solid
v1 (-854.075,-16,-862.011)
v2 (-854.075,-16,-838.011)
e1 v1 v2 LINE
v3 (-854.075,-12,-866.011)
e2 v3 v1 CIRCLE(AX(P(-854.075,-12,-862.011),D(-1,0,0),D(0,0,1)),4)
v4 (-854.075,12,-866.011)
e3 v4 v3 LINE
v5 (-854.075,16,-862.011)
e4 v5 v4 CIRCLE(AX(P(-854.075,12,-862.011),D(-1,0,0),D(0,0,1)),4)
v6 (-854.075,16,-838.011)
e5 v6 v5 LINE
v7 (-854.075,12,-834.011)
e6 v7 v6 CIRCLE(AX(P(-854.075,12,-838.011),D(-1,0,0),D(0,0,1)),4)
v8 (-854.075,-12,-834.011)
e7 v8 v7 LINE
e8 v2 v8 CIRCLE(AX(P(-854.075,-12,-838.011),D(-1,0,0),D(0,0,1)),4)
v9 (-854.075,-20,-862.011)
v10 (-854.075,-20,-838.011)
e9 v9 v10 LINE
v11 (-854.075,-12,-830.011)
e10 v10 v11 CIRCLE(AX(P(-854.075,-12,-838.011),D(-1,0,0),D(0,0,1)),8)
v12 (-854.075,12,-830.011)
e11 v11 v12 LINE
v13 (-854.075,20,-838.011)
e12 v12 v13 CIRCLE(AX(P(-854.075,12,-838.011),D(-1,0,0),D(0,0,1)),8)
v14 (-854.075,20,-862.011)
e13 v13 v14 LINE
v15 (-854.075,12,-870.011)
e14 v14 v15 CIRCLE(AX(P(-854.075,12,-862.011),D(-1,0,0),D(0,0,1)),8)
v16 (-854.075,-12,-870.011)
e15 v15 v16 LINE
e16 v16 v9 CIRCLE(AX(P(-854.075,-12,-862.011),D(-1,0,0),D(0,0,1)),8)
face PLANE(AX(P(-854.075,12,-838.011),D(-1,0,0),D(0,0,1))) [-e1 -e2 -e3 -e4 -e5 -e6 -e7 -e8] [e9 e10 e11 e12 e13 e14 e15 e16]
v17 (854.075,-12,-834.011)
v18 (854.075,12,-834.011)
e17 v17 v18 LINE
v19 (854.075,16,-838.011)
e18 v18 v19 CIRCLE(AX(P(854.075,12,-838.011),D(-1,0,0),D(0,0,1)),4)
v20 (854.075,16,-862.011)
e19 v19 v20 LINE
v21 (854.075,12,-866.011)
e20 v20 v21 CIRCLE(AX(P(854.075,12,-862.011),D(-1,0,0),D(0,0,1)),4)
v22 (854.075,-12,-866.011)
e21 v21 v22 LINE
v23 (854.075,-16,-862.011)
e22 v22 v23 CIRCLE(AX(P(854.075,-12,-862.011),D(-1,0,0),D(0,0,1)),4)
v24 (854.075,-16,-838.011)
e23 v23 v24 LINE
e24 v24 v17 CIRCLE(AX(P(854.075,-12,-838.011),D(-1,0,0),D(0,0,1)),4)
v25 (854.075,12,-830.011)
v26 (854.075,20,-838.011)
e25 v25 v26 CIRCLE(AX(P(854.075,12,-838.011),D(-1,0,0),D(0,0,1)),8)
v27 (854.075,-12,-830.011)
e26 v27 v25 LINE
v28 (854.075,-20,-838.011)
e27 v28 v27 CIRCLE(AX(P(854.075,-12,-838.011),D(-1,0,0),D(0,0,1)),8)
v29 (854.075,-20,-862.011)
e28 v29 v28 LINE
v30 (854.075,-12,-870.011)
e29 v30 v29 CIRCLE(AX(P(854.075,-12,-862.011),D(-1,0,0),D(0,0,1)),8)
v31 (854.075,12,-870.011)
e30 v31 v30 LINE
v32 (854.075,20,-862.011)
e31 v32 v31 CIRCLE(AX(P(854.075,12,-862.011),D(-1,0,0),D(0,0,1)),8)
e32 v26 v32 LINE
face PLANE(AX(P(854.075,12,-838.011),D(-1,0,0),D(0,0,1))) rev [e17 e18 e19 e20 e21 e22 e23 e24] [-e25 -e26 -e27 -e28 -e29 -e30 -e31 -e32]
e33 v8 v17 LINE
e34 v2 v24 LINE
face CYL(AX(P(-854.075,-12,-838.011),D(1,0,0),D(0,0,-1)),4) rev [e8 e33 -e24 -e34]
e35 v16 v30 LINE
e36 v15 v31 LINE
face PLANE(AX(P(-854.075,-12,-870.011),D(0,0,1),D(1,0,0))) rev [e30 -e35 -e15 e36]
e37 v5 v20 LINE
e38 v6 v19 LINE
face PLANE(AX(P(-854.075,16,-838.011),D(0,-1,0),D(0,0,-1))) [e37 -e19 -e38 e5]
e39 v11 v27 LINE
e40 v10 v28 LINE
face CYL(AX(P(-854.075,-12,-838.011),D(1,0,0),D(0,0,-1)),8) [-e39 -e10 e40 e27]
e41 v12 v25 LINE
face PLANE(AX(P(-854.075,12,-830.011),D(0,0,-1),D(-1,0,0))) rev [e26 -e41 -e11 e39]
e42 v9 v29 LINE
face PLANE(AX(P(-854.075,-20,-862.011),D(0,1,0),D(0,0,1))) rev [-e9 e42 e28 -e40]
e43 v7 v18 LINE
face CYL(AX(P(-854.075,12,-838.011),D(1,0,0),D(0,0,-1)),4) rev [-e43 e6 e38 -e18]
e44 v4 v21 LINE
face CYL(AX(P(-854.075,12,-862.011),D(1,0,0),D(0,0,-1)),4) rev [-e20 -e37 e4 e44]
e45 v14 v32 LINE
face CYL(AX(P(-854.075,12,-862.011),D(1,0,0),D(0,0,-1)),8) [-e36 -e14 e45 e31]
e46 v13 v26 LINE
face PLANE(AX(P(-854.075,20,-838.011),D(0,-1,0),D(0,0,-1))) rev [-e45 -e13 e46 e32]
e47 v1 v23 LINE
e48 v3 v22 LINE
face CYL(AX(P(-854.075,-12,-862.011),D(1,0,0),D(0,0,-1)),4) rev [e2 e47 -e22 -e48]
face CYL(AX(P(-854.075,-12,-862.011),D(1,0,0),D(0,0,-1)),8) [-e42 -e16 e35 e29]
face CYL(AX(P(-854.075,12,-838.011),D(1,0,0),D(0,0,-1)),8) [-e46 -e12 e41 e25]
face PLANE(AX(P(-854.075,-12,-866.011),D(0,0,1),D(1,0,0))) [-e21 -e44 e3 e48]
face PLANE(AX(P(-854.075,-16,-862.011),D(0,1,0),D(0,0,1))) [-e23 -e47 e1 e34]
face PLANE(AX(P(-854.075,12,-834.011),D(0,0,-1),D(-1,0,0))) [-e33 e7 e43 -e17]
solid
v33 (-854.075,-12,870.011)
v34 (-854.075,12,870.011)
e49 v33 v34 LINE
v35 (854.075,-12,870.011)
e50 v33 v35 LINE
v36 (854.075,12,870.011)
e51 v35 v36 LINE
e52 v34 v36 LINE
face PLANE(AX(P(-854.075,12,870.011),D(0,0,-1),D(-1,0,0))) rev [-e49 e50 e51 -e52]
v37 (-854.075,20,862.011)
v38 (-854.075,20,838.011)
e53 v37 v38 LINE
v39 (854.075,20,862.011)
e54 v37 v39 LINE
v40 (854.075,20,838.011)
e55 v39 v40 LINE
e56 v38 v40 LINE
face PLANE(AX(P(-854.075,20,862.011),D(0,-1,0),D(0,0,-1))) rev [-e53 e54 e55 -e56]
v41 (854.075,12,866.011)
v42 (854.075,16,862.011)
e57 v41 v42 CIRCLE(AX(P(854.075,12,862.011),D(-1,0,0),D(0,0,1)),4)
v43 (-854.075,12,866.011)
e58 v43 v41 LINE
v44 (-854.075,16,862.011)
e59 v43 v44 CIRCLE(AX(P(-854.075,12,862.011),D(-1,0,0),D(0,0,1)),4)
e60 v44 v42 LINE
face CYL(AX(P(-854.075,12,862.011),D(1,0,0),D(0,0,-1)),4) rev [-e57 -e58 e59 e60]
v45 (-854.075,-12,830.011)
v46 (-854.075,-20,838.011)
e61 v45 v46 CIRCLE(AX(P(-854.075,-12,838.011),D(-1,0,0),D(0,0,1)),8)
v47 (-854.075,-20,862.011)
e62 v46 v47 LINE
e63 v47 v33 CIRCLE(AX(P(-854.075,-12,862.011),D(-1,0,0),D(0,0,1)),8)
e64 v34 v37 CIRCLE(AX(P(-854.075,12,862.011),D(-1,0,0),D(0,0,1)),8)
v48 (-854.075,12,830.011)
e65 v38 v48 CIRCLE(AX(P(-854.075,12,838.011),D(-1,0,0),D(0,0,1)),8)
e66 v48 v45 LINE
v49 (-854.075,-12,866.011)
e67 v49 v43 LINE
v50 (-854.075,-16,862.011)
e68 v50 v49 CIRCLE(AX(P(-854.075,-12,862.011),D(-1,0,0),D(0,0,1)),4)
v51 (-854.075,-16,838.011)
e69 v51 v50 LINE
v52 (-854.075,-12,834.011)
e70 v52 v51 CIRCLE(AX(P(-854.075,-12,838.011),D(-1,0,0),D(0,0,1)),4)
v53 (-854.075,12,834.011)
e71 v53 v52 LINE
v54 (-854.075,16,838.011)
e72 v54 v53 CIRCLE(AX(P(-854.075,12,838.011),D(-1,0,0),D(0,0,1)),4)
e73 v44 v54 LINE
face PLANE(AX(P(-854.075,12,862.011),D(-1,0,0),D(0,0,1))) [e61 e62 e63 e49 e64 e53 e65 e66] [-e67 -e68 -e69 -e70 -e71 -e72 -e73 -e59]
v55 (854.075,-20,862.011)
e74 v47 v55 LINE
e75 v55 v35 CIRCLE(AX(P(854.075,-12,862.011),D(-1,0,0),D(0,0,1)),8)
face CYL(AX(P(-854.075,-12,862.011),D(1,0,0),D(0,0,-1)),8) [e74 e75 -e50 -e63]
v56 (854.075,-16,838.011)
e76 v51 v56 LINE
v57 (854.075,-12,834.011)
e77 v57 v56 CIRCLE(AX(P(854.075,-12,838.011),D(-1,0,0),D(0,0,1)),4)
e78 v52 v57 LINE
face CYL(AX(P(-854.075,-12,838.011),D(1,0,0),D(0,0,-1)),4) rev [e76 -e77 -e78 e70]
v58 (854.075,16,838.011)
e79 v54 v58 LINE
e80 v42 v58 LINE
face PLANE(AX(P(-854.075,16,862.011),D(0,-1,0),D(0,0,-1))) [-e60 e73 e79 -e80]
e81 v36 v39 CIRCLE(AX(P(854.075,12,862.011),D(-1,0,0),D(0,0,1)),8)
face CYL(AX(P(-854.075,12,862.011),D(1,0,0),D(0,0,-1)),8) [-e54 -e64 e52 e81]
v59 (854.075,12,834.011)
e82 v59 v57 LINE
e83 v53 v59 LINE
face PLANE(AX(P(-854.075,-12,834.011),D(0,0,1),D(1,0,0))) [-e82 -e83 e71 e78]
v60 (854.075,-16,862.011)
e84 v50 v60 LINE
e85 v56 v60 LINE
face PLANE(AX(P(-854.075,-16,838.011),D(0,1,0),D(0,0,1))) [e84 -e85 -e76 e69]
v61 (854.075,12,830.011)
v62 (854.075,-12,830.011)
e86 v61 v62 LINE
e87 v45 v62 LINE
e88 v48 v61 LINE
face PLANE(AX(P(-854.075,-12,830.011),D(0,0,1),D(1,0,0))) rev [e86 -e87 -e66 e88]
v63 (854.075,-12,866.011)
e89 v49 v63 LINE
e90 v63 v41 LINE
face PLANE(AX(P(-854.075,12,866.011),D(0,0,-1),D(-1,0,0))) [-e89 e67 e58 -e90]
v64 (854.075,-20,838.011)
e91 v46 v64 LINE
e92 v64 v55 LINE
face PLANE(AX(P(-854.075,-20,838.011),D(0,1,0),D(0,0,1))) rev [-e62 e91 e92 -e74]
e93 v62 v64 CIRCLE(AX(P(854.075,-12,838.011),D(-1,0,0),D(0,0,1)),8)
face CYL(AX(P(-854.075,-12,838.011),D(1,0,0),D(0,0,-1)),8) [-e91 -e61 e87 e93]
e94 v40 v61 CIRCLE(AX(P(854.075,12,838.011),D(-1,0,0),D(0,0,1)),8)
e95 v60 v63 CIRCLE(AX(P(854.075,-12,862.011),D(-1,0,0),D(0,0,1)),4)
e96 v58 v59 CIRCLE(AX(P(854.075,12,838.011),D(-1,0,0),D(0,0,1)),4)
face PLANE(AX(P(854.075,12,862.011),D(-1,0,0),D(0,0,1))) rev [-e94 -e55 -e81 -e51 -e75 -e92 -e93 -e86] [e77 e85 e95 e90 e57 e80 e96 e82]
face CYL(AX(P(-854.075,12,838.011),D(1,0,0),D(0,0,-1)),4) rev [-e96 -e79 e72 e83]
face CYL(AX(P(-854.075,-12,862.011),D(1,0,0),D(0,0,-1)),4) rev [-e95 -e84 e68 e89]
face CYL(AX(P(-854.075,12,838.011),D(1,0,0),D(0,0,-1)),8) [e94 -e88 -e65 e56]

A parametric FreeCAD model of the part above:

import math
import FreeCAD as App
import Part
import Sketcher
from FreeCAD import Vector

doc = App.newDocument("Part")
body = doc.addObject("PartDesign::Body", "Body")

sketch1 = doc.addObject("Sketcher::SketchObject", "Sketch")
body.addObject(sketch1)
sketch1.AttachmentSupport = (doc.YZ_Plane, [""])
sketch1.MapMode = "FlatFace"
sketch1.AttachmentOffset = App.Placement(Vector(0, 0, 854.075), App.Rotation())
sketch1.addGeometry([
    Part.LineSegment(Vector(-20, -862, 0), Vector(-20, -838, 0)),
    Part.ArcOfCircle(Part.Circle(Vector(-12, -838, 0), Vector(0, 0, 1), 8), math.radians(90), math.radians(180)),
    Part.LineSegment(Vector(-12, -830, 0), Vector(12, -830, 0)),
    Part.ArcOfCircle(Part.Circle(Vector(12, -838, 0), Vector(0, 0, 1), 8), math.radians(0), math.radians(90)),
    Part.LineSegment(Vector(20, -838, 0), Vector(20, -862, 0)),
    Part.ArcOfCircle(Part.Circle(Vector(12, -862, 0), Vector(0, 0, 1), 8), math.radians(-90), math.radians(0)),
    Part.LineSegment(Vector(12, -870, 0), Vector(-12, -870, 0)),
    Part.ArcOfCircle(Part.Circle(Vector(-12, -862, 0), Vector(0, 0, 1), 8), math.radians(-180), math.radians(-90)),
    Part.LineSegment(Vector(-16, -838, 0), Vector(-16, -862, 0)),
    Part.ArcOfCircle(Part.Circle(Vector(-12, -862, 0), Vector(0, 0, 1), 4), math.radians(180), math.radians(270)),
    Part.LineSegment(Vector(-12, -866, 0), Vector(12, -866, 0)),
    Part.ArcOfCircle(Part.Circle(Vector(12, -862, 0), Vector(0, 0, 1), 4), math.radians(-90), math.radians(0)),
    Part.LineSegment(Vector(16, -862, 0), Vector(16, -838, 0)),
    Part.ArcOfCircle(Part.Circle(Vector(12, -838, 0), Vector(0, 0, 1), 4), math.radians(0), math.radians(90)),
    Part.LineSegment(Vector(12, -834, 0), Vector(-12, -834, 0)),
    Part.ArcOfCircle(Part.Circle(Vector(-12, -838, 0), Vector(0, 0, 1), 4), math.radians(90), math.radians(180)),
], False)
sketch1.addConstraint([
    Sketcher.Constraint("Tangent", 0, 2, 1, 2),
    Sketcher.Constraint("Tangent", 1, 1, 2, 1),
    Sketcher.Constraint("Tangent", 2, 2, 3, 2),
    Sketcher.Constraint("Tangent", 3, 1, 4, 1),
    Sketcher.Constraint("Tangent", 4, 2, 5, 2),
    Sketcher.Constraint("Tangent", 5, 1, 6, 1),
    Sketcher.Constraint("Tangent", 6, 2, 7, 2),
    Sketcher.Constraint("Tangent", 7, 1, 0, 1),
    Sketcher.Constraint("Tangent", 8, 2, 9, 1),
    Sketcher.Constraint("Tangent", 9, 2, 10, 1),
    Sketcher.Constraint("Tangent", 10, 2, 11, 1),
    Sketcher.Constraint("Tangent", 11, 2, 12, 1),
    Sketcher.Constraint("Tangent", 12, 2, 13, 1),
    Sketcher.Constraint("Tangent", 13, 2, 14, 1),
    Sketcher.Constraint("Tangent", 14, 2, 15, 1),
    Sketcher.Constraint("Tangent", 15, 2, 8, 1),
    Sketcher.Constraint("Vertical", 0),
    Sketcher.Constraint("Horizontal", 2),
    Sketcher.Constraint("Vertical", 4),
    Sketcher.Constraint("Horizontal", 6),
    Sketcher.Constraint("Vertical", 8),
    Sketcher.Constraint("Horizontal", 10),
    Sketcher.Constraint("Vertical", 12),
    Sketcher.Constraint("Horizontal", 14),
    Sketcher.Constraint("Coincident", 9, 3, 7, 3),
    Sketcher.Constraint("Coincident", 11, 3, 5, 3),
    Sketcher.Constraint("Coincident", 13, 3, 3, 3),
    Sketcher.Constraint("Equal", 1, 3),
    Sketcher.Constraint("Equal", 3, 5),
    Sketcher.Constraint("Equal", 5, 7),
    Sketcher.Constraint("Equal", 13, 15),
    Sketcher.Constraint("Equal", 14, 0),
    Sketcher.Constraint("Radius", 1, 8.0),
    Sketcher.Constraint("Radius", 9, 4.0),
    Sketcher.Constraint("DistanceX", 2, 1, 2, 2, 24.0),
    Sketcher.Constraint("DistanceX", 1, 3, -1, 1, 12.0),
    Sketcher.Constraint("DistanceY", 1, 3, -1, 1, 838.011),
])
pad1 = doc.addObject("PartDesign::Pad", "Pad")
body.addObject(pad1)
pad1.Profile = sketch1
pad1.Length = 1708.15
pad1.Reversed = True
body2 = doc.addObject("PartDesign::Body", "Body001")

sketch2 = doc.addObject("Sketcher::SketchObject", "Sketch001")
body2.addObject(sketch2)
sketch2.AttachmentSupport = (doc.getObject("YZ_Plane001"), [""])
sketch2.MapMode = "FlatFace"
sketch2.AttachmentOffset = App.Placement(Vector(0, 0, 854.075), App.Rotation())
sketch2.addGeometry([
    Part.LineSegment(Vector(-20, 838, 0), Vector(-20, 862, 0)),
    Part.ArcOfCircle(Part.Circle(Vector(-12, 862, 0), Vector(0, 0, 1), 8), math.radians(90), math.radians(180)),
    Part.LineSegment(Vector(-12, 870, 0), Vector(12, 870, 0)),
    Part.ArcOfCircle(Part.Circle(Vector(12, 862, 0), Vector(0, 0, 1), 8), math.radians(0), math.radians(90)),
    Part.LineSegment(Vector(20, 862, 0), Vector(20, 838, 0)),
    Part.ArcOfCircle(Part.Circle(Vector(12, 838, 0), Vector(0, 0, 1), 8), math.radians(-90), math.radians(0)),
    Part.LineSegment(Vector(12, 830, 0), Vector(-12, 830, 0)),
    Part.ArcOfCircle(Part.Circle(Vector(-12, 838, 0), Vector(0, 0, 1), 8), math.radians(-180), math.radians(-90)),
    Part.LineSegment(Vector(-16, 862, 0), Vector(-16, 838, 0)),
    Part.ArcOfCircle(Part.Circle(Vector(-12, 838, 0), Vector(0, 0, 1), 4), math.radians(180), math.radians(270)),
    Part.LineSegment(Vector(-12, 834, 0), Vector(12, 834, 0)),
    Part.ArcOfCircle(Part.Circle(Vector(12, 838, 0), Vector(0, 0, 1), 4), math.radians(-90), math.radians(0)),
    Part.LineSegment(Vector(16, 838, 0), Vector(16, 862, 0)),
    Part.ArcOfCircle(Part.Circle(Vector(12, 862, 0), Vector(0, 0, 1), 4), math.radians(0), math.radians(90)),
    Part.LineSegment(Vector(12, 866, 0), Vector(-12, 866, 0)),
    Part.ArcOfCircle(Part.Circle(Vector(-12, 862, 0), Vector(0, 0, 1), 4), math.radians(90), math.radians(180)),
], False)
sketch2.addConstraint([
    Sketcher.Constraint("Tangent", 0, 2, 1, 2),
    Sketcher.Constraint("Tangent", 1, 1, 2, 1),
    Sketcher.Constraint("Tangent", 2, 2, 3, 2),
    Sketcher.Constraint("Tangent", 3, 1, 4, 1),
    Sketcher.Constraint("Tangent", 4, 2, 5, 2),
    Sketcher.Constraint("Tangent", 5, 1, 6, 1),
    Sketcher.Constraint("Tangent", 6, 2, 7, 2),
    Sketcher.Constraint("Tangent", 7, 1, 0, 1),
    Sketcher.Constraint("Tangent", 8, 2, 9, 1),
    Sketcher.Constraint("Tangent", 9, 2, 10, 1),
    Sketcher.Constraint("Tangent", 10, 2, 11, 1),
    Sketcher.Constraint("Tangent", 11, 2, 12, 1),
    Sketcher.Constraint("Tangent", 12, 2, 13, 1),
    Sketcher.Constraint("Tangent", 13, 2, 14, 1),
    Sketcher.Constraint("Tangent", 14, 2, 15, 1),
    Sketcher.Constraint("Tangent", 15, 2, 8, 1),
    Sketcher.Constraint("Vertical", 0),
    Sketcher.Constraint("Horizontal", 2),
    Sketcher.Constraint("Vertical", 4),
    Sketcher.Constraint("Horizontal", 6),
    Sketcher.Constraint("Vertical", 8),
    Sketcher.Constraint("Horizontal", 10),
    Sketcher.Constraint("Vertical", 12),
    Sketcher.Constraint("Horizontal", 14),
    Sketcher.Constraint("Coincident", 9, 3, 7, 3),
    Sketcher.Constraint("Coincident", 11, 3, 5, 3),
    Sketcher.Constraint("Coincident", 13, 3, 3, 3),
    Sketcher.Constraint("Equal", 1, 3),
    Sketcher.Constraint("Equal", 3, 5),
    Sketcher.Constraint("Equal", 5, 7),
    Sketcher.Constraint("Equal", 13, 15),
    Sketcher.Constraint("Equal", 14, 0),
    Sketcher.Constraint("Radius", 1, 8.0),
    Sketcher.Constraint("Radius", 9, 4.0),
    Sketcher.Constraint("DistanceX", 2, 1, 2, 2, 24.0),
    Sketcher.Constraint("DistanceX", 1, 3, -1, 1, 12.0),
    Sketcher.Constraint("DistanceY", -1, 1, 1, 3, 862.011),
])
pad2 = doc.addObject("PartDesign::Pad", "Pad001")
body2.addObject(pad2)
pad2.Profile = sketch2
pad2.Length = 1708.15
pad2.Reversed = True

doc.recompute()
